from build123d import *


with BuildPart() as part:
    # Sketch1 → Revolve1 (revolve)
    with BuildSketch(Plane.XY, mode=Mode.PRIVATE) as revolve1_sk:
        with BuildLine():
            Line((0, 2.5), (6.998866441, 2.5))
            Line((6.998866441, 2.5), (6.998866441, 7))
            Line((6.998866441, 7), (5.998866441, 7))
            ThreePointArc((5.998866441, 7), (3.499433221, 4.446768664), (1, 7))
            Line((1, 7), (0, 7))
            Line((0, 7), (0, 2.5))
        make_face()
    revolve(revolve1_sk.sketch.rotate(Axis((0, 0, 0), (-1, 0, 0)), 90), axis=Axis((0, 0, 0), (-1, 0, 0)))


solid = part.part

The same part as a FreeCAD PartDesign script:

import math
import FreeCAD as App
import Part
import Sketcher
Q = App.Units.Quantity

doc = App.newDocument("Part")
params = doc.addObject("Spreadsheet::Sheet", "Params")
for row, (alias, value) in enumerate([
    ("sketch1_radius", "2.5 mm"),
    ("sketch1_width", "1 mm"),
    ("sketch1_height", "4.5 mm"),
    ("revolution_angle", "360 deg"),
], start=1):
    params.set(f"A{row}", alias)
    params.set(f"B{row}", "=" + value)
    params.setAlias(f"B{row}", alias)

body = doc.addObject("PartDesign::Body", "Body")

sketch1 = body.newObject("Sketcher::SketchObject", "Sketch")
sketch1.AttachmentSupport = (doc.getObject("XY_Plane"), [""])
sketch1.MapMode = "FlatFace"
sketch1.addGeometry([
    Part.LineSegment(App.Vector(0, 2.5, 0), App.Vector(6.998866, 2.5, 0)),
    Part.LineSegment(App.Vector(6.998866, 2.5, 0), App.Vector(6.998866, 7, 0)),
    Part.LineSegment(App.Vector(6.998866, 7, 0), App.Vector(5.998866, 7, 0)),
    Part.ArcOfCircle(Part.Circle(App.Vector(3.499433, 6.946769, 0), App.Vector(0, 0, 1), 2.5), math.radians(178.779935), math.radians(361.220065)),
    Part.LineSegment(App.Vector(1, 7, 0), App.Vector(0, 7, 0)),
    Part.LineSegment(App.Vector(0, 7, 0), App.Vector(0, 2.5, 0)),
], False)
sketch1.addConstraint([
    Sketcher.Constraint("Coincident", 0, 2, 1, 1),
    Sketcher.Constraint("Coincident", 1, 2, 2, 1),
    Sketcher.Constraint("Coincident", 2, 2, 3, 2),
    Sketcher.Constraint("Coincident", 3, 1, 4, 1),
    Sketcher.Constraint("Coincident", 4, 2, 5, 1),
    Sketcher.Constraint("Coincident", 5, 2, 0, 1),
    Sketcher.Constraint("Horizontal", 0),
    Sketcher.Constraint("Vertical", 1),
    Sketcher.Constraint("Horizontal", 2),
    Sketcher.Constraint("Horizontal", 4),
    Sketcher.Constraint("Vertical", 5),
    Sketcher.Constraint("PointOnObject", 4, 2, -2),
    Sketcher.Constraint("Horizontal", 2, 2, 3, 1),
    Sketcher.Constraint("Equal", 2, 4),
    Sketcher.Constraint("Radius", 3, Q("2.5 mm")),
    Sketcher.Constraint("DistanceX", 2, 2, 2, 1, Q("1 mm")),
    Sketcher.Constraint("DistanceY", 1, 1, 1, 2, Q("4.5 mm")),
    Sketcher.Constraint("DistanceY", -1, 1, 1, 2, Q("7 mm")),
    Sketcher.Constraint("DistanceX", 0, 1, 0, 2, Q("6.998866 mm")),
])
sketch1.setExpression("Constraints[14]", "Params.sketch1_radius")
sketch1.setExpression("Constraints[15]", "Params.sketch1_width")
sketch1.setExpression("Constraints[16]", "Params.sketch1_height")
revolution = body.newObject("PartDesign::Revolution", "Revolution")
revolution.Profile = sketch1
revolution.ReferenceAxis = (sketch1, ["H_Axis"])
revolution.setExpression("Angle", "Params.revolution_angle")

doc.recompute()
